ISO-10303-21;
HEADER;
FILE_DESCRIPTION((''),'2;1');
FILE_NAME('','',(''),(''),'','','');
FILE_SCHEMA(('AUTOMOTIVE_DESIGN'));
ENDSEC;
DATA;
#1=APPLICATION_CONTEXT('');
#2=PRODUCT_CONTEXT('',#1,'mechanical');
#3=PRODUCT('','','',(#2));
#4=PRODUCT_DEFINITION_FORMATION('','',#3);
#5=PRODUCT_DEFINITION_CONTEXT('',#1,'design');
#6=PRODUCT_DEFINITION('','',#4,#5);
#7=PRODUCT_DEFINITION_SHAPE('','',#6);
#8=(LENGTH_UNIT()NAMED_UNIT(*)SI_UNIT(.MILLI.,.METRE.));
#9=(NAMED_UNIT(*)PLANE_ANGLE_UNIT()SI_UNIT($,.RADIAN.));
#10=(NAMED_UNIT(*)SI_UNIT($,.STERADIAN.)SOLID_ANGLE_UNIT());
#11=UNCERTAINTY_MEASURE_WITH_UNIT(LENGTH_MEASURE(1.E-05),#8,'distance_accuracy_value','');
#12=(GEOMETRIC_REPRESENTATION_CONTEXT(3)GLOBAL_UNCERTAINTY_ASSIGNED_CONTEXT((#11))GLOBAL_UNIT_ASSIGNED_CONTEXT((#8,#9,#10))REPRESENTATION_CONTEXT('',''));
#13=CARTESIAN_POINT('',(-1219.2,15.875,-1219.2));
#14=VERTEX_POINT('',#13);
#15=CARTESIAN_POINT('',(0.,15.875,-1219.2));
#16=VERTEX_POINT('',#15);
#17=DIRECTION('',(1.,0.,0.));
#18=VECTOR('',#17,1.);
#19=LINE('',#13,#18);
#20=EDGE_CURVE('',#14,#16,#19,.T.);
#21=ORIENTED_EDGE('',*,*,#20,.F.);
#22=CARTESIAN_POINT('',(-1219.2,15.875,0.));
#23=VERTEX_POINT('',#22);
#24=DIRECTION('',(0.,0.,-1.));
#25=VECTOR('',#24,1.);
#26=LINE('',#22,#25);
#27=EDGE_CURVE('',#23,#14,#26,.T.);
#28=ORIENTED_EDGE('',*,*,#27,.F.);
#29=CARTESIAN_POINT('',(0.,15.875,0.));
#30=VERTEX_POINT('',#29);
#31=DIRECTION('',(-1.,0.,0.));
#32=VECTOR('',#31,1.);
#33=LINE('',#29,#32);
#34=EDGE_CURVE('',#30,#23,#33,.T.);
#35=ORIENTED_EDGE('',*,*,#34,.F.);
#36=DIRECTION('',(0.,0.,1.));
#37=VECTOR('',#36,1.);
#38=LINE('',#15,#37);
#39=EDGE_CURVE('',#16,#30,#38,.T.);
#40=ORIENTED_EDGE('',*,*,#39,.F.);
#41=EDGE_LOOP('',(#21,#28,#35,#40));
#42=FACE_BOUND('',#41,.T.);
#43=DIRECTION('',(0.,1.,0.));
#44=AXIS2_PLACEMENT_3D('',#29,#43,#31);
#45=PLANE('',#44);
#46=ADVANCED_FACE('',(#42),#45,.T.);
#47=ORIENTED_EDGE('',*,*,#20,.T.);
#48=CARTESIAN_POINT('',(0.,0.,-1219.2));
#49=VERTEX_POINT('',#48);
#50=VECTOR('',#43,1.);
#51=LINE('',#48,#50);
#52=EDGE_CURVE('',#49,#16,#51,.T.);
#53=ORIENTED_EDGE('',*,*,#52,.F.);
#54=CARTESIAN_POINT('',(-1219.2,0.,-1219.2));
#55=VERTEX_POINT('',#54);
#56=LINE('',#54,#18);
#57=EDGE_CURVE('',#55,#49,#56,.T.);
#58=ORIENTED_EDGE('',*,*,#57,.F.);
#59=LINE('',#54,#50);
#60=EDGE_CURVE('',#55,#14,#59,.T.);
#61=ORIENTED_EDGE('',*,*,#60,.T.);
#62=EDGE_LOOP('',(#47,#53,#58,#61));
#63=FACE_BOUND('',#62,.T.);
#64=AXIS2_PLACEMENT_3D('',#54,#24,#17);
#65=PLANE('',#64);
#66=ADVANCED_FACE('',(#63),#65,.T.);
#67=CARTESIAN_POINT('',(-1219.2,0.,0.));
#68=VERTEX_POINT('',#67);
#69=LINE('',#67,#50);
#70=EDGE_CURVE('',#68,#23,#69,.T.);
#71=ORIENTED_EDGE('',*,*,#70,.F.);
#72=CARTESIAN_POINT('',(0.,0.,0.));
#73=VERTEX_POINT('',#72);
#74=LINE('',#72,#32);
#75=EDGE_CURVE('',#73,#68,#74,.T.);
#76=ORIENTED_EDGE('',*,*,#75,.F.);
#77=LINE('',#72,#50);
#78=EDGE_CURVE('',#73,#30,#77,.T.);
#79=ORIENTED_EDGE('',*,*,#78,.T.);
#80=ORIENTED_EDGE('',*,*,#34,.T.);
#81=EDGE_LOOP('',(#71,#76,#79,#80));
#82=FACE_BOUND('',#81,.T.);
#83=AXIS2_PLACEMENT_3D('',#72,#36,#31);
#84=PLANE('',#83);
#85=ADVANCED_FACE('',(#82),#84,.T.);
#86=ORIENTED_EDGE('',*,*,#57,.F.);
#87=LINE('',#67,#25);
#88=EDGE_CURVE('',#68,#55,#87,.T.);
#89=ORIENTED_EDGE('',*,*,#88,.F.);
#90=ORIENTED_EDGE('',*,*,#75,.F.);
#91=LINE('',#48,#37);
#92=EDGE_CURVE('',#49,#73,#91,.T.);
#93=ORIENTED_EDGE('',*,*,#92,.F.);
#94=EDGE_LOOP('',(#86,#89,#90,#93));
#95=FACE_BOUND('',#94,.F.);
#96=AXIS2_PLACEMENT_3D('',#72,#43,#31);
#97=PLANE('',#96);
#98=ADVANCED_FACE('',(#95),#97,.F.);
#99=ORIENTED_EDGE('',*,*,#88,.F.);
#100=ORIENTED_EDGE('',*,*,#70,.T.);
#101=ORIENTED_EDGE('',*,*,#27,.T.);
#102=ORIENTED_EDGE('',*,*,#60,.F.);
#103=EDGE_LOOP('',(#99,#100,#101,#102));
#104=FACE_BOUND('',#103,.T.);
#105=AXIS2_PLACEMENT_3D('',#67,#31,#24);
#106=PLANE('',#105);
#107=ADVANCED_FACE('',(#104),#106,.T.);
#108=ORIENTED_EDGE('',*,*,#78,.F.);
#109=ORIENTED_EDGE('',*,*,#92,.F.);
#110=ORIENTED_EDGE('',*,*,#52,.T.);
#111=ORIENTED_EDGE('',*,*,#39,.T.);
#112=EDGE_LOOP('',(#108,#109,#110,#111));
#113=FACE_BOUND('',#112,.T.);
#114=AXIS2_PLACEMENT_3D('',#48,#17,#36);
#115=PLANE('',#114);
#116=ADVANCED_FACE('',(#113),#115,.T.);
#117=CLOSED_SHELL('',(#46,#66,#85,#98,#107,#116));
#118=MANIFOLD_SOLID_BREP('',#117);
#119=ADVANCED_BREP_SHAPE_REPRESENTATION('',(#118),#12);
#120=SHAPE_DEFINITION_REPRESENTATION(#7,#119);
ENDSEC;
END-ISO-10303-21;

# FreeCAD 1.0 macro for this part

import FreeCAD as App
import Part
import Sketcher

V = App.Vector
Q = App.Units.Quantity

doc = App.newDocument("Part")
body = doc.addObject("PartDesign::Body", "Body")

# Sketch on XZ plane
sketch1 = doc.addObject("Sketcher::SketchObject", "Sketch")
body.addObject(sketch1)
sketch1.AttachmentSupport = (doc.XZ_Plane, [""])
sketch1.MapMode = "FlatFace"
sketch1.addGeometry([
    Part.LineSegment(V(-1219, 0, 0), V(0, 0, 0)),
    Part.LineSegment(V(0, 0, 0), V(0, -1219, 0)),
    Part.LineSegment(V(0, -1219, 0), V(-1219, -1219, 0)),
    Part.LineSegment(V(-1219, -1219, 0), V(-1219, 0, 0)),
], False)
sketch1.addConstraint([
    Sketcher.Constraint("Coincident", 0, 2, 1, 1),
    Sketcher.Constraint("Coincident", 1, 2, 2, 1),
    Sketcher.Constraint("Coincident", 2, 2, 3, 1),
    Sketcher.Constraint("Coincident", 3, 2, 0, 1),
    Sketcher.Constraint("Horizontal", 0),
    Sketcher.Constraint("Vertical", 1),
    Sketcher.Constraint("Horizontal", 2),
    Sketcher.Constraint("Vertical", 3),
    Sketcher.Constraint("Coincident", 0, 2, -1, 1),
    Sketcher.Constraint("Equal", 2, 1),
    Sketcher.Constraint("DistanceX", 0, 1, 0, 2, Q("48 in")),
])
pad1 = doc.addObject("PartDesign::Pad", "Pad")
body.addObject(pad1)
pad1.Profile = sketch1
pad1.Length = Q("0.625 in")
pad1.Reversed = True

doc.recompute()
